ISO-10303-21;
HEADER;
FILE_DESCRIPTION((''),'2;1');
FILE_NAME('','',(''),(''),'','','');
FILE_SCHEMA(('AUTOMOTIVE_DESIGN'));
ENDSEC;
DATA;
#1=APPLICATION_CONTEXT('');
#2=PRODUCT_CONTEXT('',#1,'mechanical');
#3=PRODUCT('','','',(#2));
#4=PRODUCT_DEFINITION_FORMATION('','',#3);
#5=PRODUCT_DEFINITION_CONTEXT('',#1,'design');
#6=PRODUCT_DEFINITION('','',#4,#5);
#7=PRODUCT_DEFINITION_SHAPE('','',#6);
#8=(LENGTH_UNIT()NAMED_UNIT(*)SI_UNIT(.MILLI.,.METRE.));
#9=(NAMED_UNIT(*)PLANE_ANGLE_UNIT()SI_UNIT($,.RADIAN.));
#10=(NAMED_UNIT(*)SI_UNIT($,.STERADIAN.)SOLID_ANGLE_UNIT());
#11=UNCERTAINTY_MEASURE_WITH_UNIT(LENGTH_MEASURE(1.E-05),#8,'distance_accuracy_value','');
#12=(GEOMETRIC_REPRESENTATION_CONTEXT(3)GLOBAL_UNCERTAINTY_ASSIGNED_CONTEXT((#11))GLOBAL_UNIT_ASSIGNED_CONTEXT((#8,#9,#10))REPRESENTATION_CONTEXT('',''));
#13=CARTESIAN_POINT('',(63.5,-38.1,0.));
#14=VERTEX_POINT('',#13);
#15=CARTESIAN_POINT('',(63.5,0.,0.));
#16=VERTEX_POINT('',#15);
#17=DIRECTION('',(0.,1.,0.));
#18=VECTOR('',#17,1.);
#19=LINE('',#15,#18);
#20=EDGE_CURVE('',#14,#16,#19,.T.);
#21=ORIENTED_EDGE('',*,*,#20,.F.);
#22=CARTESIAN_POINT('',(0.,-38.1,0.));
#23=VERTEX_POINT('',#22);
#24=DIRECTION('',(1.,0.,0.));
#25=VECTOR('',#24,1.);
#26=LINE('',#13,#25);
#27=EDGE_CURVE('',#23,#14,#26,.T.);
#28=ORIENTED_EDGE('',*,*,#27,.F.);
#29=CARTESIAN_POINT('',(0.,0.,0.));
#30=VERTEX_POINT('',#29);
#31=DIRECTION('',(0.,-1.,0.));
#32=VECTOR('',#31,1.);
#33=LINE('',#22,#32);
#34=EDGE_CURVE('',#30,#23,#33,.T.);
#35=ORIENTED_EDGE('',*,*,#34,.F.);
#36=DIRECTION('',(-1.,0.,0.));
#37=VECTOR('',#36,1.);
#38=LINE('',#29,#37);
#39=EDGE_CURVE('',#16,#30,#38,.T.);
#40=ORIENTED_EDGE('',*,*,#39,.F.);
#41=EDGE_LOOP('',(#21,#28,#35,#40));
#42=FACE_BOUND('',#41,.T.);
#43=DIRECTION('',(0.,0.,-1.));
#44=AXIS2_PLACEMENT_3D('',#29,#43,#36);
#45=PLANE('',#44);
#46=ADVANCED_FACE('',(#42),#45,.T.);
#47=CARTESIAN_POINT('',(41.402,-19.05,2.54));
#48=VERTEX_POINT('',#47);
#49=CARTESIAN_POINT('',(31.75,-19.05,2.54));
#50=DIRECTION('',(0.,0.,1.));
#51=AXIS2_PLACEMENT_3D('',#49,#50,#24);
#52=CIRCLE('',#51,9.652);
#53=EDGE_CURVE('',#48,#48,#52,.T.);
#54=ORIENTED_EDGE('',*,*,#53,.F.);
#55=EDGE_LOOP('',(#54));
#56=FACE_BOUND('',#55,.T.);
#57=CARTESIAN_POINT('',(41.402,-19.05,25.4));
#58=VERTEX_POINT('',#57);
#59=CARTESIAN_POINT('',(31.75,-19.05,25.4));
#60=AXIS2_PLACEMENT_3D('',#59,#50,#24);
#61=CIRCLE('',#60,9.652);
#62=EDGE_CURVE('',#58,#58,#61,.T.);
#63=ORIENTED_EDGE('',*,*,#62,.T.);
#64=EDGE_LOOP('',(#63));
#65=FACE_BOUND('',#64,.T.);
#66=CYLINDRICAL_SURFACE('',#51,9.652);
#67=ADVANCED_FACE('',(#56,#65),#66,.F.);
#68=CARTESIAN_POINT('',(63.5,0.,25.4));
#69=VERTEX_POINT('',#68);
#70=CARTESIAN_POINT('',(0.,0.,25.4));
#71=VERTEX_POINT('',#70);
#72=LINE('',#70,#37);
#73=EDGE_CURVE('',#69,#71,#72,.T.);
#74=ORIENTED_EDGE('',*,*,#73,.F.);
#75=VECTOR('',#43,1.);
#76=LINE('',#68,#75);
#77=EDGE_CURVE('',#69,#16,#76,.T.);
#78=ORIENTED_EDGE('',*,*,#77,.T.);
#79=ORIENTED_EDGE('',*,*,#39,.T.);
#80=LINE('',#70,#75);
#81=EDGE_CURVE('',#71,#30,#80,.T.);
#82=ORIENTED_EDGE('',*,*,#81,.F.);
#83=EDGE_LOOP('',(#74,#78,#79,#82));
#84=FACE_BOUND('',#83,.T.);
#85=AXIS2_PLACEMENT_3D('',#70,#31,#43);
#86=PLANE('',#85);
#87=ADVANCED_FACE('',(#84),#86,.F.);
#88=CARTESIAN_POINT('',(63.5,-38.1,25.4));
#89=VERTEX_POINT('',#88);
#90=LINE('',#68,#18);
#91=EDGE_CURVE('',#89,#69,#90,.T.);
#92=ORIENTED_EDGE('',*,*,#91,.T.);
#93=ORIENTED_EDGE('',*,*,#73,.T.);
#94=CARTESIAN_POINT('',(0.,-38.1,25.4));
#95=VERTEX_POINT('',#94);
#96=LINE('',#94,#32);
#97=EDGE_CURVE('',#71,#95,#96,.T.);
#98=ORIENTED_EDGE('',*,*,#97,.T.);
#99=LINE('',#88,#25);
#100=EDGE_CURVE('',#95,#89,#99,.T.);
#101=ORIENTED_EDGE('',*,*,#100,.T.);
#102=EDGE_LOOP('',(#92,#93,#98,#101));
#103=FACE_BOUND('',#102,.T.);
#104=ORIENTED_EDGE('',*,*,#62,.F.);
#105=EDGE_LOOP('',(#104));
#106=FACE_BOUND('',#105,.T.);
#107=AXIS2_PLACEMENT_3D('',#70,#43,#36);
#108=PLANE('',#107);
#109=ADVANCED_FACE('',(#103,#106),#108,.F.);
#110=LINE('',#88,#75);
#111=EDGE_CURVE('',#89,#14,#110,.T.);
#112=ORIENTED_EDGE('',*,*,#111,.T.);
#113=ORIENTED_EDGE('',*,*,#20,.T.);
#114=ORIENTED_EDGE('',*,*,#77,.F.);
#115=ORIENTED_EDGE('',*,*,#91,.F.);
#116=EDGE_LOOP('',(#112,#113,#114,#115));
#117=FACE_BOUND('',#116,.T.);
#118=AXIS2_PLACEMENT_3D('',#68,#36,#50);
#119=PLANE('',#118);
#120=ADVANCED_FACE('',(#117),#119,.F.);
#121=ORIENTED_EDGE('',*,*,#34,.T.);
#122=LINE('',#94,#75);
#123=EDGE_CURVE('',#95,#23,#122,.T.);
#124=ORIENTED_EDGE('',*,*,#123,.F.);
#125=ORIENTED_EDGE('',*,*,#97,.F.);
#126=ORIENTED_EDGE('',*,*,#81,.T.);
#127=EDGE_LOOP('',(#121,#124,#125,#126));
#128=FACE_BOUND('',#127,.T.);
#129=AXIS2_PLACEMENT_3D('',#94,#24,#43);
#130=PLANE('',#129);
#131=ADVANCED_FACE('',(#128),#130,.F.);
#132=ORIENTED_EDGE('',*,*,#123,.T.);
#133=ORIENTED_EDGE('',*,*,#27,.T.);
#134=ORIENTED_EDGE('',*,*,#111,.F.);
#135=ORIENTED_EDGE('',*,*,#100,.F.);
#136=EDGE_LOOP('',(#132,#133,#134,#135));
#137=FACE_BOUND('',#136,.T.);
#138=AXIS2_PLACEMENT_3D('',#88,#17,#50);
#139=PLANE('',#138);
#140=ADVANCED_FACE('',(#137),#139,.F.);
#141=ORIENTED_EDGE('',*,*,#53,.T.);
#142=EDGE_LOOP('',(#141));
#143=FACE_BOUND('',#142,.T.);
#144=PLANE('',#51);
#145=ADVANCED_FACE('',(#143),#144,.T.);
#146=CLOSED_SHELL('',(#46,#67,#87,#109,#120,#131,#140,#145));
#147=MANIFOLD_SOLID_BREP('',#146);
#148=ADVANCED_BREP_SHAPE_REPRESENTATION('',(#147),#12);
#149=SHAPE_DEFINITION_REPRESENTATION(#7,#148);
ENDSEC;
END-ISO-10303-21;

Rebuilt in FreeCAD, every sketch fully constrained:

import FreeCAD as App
import Part
import Sketcher
from FreeCAD import Vector
Q = App.Units.Quantity

doc = App.newDocument("Part")
body = doc.addObject("PartDesign::Body", "Body")

# Sketch on XY plane
sketch1 = body.newObject("Sketcher::SketchObject", "Sketch")
sketch1.AttachmentSupport = (doc.getObject("XY_Plane"), [""])
sketch1.MapMode = "FlatFace"
sketch1.addGeometry([
    Part.LineSegment(Vector(0, 0, 0), Vector(0, -38.1, 0)),
    Part.LineSegment(Vector(0, -38.1, 0), Vector(63.5, -38.1, 0)),
    Part.LineSegment(Vector(63.5, -38.1, 0), Vector(63.5, 0, 0)),
    Part.LineSegment(Vector(63.5, 0, 0), Vector(0, 0, 0)),
], False)
sketch1.addConstraint([
    Sketcher.Constraint("Coincident", 0, 2, 1, 1),
    Sketcher.Constraint("Coincident", 1, 2, 2, 1),
    Sketcher.Constraint("Coincident", 2, 2, 3, 1),
    Sketcher.Constraint("Coincident", 3, 2, 0, 1),
    Sketcher.Constraint("Vertical", 0),
    Sketcher.Constraint("Horizontal", 1),
    Sketcher.Constraint("Vertical", 2),
    Sketcher.Constraint("Horizontal", 3),
    Sketcher.Constraint("Coincident", 3, 2, -1, 1),
    Sketcher.Constraint("DistanceX", 1, 1, 1, 2, Q("2.5 in")),
    Sketcher.Constraint("DistanceY", 0, 2, 0, 1, Q("1.5 in")),
])
pad1 = body.newObject("PartDesign::Pad", "Pad")
pad1.Profile = sketch1
pad1.Length = Q("1 in")

# Sketch on XY plane
sketch2 = body.newObject("Sketcher::SketchObject", "Sketch001")
sketch2.AttachmentSupport = (doc.getObject("XY_Plane"), [""])
sketch2.MapMode = "FlatFace"
sketch2.AttachmentOffset = App.Placement(Vector(0, 0, 1 * 25.4), App.Rotation())
sketch2.addGeometry(Part.Circle(Vector(31.75, -19.05, 0), Vector(0, 0, 1), 9.652), False)
sketch2.addConstraint([
    Sketcher.Constraint("Diameter", 0, Q("0.76 in")),
    Sketcher.Constraint("DistanceX", -1, 1, 0, 3, Q("1.25 in")),
    Sketcher.Constraint("DistanceY", 0, 3, -1, 1, Q("0.75 in")),
])
pocket1 = body.newObject("PartDesign::Pocket", "Pocket")
pocket1.Profile = sketch2
pocket1.Length = Q("0.9 in")

doc.recompute()
